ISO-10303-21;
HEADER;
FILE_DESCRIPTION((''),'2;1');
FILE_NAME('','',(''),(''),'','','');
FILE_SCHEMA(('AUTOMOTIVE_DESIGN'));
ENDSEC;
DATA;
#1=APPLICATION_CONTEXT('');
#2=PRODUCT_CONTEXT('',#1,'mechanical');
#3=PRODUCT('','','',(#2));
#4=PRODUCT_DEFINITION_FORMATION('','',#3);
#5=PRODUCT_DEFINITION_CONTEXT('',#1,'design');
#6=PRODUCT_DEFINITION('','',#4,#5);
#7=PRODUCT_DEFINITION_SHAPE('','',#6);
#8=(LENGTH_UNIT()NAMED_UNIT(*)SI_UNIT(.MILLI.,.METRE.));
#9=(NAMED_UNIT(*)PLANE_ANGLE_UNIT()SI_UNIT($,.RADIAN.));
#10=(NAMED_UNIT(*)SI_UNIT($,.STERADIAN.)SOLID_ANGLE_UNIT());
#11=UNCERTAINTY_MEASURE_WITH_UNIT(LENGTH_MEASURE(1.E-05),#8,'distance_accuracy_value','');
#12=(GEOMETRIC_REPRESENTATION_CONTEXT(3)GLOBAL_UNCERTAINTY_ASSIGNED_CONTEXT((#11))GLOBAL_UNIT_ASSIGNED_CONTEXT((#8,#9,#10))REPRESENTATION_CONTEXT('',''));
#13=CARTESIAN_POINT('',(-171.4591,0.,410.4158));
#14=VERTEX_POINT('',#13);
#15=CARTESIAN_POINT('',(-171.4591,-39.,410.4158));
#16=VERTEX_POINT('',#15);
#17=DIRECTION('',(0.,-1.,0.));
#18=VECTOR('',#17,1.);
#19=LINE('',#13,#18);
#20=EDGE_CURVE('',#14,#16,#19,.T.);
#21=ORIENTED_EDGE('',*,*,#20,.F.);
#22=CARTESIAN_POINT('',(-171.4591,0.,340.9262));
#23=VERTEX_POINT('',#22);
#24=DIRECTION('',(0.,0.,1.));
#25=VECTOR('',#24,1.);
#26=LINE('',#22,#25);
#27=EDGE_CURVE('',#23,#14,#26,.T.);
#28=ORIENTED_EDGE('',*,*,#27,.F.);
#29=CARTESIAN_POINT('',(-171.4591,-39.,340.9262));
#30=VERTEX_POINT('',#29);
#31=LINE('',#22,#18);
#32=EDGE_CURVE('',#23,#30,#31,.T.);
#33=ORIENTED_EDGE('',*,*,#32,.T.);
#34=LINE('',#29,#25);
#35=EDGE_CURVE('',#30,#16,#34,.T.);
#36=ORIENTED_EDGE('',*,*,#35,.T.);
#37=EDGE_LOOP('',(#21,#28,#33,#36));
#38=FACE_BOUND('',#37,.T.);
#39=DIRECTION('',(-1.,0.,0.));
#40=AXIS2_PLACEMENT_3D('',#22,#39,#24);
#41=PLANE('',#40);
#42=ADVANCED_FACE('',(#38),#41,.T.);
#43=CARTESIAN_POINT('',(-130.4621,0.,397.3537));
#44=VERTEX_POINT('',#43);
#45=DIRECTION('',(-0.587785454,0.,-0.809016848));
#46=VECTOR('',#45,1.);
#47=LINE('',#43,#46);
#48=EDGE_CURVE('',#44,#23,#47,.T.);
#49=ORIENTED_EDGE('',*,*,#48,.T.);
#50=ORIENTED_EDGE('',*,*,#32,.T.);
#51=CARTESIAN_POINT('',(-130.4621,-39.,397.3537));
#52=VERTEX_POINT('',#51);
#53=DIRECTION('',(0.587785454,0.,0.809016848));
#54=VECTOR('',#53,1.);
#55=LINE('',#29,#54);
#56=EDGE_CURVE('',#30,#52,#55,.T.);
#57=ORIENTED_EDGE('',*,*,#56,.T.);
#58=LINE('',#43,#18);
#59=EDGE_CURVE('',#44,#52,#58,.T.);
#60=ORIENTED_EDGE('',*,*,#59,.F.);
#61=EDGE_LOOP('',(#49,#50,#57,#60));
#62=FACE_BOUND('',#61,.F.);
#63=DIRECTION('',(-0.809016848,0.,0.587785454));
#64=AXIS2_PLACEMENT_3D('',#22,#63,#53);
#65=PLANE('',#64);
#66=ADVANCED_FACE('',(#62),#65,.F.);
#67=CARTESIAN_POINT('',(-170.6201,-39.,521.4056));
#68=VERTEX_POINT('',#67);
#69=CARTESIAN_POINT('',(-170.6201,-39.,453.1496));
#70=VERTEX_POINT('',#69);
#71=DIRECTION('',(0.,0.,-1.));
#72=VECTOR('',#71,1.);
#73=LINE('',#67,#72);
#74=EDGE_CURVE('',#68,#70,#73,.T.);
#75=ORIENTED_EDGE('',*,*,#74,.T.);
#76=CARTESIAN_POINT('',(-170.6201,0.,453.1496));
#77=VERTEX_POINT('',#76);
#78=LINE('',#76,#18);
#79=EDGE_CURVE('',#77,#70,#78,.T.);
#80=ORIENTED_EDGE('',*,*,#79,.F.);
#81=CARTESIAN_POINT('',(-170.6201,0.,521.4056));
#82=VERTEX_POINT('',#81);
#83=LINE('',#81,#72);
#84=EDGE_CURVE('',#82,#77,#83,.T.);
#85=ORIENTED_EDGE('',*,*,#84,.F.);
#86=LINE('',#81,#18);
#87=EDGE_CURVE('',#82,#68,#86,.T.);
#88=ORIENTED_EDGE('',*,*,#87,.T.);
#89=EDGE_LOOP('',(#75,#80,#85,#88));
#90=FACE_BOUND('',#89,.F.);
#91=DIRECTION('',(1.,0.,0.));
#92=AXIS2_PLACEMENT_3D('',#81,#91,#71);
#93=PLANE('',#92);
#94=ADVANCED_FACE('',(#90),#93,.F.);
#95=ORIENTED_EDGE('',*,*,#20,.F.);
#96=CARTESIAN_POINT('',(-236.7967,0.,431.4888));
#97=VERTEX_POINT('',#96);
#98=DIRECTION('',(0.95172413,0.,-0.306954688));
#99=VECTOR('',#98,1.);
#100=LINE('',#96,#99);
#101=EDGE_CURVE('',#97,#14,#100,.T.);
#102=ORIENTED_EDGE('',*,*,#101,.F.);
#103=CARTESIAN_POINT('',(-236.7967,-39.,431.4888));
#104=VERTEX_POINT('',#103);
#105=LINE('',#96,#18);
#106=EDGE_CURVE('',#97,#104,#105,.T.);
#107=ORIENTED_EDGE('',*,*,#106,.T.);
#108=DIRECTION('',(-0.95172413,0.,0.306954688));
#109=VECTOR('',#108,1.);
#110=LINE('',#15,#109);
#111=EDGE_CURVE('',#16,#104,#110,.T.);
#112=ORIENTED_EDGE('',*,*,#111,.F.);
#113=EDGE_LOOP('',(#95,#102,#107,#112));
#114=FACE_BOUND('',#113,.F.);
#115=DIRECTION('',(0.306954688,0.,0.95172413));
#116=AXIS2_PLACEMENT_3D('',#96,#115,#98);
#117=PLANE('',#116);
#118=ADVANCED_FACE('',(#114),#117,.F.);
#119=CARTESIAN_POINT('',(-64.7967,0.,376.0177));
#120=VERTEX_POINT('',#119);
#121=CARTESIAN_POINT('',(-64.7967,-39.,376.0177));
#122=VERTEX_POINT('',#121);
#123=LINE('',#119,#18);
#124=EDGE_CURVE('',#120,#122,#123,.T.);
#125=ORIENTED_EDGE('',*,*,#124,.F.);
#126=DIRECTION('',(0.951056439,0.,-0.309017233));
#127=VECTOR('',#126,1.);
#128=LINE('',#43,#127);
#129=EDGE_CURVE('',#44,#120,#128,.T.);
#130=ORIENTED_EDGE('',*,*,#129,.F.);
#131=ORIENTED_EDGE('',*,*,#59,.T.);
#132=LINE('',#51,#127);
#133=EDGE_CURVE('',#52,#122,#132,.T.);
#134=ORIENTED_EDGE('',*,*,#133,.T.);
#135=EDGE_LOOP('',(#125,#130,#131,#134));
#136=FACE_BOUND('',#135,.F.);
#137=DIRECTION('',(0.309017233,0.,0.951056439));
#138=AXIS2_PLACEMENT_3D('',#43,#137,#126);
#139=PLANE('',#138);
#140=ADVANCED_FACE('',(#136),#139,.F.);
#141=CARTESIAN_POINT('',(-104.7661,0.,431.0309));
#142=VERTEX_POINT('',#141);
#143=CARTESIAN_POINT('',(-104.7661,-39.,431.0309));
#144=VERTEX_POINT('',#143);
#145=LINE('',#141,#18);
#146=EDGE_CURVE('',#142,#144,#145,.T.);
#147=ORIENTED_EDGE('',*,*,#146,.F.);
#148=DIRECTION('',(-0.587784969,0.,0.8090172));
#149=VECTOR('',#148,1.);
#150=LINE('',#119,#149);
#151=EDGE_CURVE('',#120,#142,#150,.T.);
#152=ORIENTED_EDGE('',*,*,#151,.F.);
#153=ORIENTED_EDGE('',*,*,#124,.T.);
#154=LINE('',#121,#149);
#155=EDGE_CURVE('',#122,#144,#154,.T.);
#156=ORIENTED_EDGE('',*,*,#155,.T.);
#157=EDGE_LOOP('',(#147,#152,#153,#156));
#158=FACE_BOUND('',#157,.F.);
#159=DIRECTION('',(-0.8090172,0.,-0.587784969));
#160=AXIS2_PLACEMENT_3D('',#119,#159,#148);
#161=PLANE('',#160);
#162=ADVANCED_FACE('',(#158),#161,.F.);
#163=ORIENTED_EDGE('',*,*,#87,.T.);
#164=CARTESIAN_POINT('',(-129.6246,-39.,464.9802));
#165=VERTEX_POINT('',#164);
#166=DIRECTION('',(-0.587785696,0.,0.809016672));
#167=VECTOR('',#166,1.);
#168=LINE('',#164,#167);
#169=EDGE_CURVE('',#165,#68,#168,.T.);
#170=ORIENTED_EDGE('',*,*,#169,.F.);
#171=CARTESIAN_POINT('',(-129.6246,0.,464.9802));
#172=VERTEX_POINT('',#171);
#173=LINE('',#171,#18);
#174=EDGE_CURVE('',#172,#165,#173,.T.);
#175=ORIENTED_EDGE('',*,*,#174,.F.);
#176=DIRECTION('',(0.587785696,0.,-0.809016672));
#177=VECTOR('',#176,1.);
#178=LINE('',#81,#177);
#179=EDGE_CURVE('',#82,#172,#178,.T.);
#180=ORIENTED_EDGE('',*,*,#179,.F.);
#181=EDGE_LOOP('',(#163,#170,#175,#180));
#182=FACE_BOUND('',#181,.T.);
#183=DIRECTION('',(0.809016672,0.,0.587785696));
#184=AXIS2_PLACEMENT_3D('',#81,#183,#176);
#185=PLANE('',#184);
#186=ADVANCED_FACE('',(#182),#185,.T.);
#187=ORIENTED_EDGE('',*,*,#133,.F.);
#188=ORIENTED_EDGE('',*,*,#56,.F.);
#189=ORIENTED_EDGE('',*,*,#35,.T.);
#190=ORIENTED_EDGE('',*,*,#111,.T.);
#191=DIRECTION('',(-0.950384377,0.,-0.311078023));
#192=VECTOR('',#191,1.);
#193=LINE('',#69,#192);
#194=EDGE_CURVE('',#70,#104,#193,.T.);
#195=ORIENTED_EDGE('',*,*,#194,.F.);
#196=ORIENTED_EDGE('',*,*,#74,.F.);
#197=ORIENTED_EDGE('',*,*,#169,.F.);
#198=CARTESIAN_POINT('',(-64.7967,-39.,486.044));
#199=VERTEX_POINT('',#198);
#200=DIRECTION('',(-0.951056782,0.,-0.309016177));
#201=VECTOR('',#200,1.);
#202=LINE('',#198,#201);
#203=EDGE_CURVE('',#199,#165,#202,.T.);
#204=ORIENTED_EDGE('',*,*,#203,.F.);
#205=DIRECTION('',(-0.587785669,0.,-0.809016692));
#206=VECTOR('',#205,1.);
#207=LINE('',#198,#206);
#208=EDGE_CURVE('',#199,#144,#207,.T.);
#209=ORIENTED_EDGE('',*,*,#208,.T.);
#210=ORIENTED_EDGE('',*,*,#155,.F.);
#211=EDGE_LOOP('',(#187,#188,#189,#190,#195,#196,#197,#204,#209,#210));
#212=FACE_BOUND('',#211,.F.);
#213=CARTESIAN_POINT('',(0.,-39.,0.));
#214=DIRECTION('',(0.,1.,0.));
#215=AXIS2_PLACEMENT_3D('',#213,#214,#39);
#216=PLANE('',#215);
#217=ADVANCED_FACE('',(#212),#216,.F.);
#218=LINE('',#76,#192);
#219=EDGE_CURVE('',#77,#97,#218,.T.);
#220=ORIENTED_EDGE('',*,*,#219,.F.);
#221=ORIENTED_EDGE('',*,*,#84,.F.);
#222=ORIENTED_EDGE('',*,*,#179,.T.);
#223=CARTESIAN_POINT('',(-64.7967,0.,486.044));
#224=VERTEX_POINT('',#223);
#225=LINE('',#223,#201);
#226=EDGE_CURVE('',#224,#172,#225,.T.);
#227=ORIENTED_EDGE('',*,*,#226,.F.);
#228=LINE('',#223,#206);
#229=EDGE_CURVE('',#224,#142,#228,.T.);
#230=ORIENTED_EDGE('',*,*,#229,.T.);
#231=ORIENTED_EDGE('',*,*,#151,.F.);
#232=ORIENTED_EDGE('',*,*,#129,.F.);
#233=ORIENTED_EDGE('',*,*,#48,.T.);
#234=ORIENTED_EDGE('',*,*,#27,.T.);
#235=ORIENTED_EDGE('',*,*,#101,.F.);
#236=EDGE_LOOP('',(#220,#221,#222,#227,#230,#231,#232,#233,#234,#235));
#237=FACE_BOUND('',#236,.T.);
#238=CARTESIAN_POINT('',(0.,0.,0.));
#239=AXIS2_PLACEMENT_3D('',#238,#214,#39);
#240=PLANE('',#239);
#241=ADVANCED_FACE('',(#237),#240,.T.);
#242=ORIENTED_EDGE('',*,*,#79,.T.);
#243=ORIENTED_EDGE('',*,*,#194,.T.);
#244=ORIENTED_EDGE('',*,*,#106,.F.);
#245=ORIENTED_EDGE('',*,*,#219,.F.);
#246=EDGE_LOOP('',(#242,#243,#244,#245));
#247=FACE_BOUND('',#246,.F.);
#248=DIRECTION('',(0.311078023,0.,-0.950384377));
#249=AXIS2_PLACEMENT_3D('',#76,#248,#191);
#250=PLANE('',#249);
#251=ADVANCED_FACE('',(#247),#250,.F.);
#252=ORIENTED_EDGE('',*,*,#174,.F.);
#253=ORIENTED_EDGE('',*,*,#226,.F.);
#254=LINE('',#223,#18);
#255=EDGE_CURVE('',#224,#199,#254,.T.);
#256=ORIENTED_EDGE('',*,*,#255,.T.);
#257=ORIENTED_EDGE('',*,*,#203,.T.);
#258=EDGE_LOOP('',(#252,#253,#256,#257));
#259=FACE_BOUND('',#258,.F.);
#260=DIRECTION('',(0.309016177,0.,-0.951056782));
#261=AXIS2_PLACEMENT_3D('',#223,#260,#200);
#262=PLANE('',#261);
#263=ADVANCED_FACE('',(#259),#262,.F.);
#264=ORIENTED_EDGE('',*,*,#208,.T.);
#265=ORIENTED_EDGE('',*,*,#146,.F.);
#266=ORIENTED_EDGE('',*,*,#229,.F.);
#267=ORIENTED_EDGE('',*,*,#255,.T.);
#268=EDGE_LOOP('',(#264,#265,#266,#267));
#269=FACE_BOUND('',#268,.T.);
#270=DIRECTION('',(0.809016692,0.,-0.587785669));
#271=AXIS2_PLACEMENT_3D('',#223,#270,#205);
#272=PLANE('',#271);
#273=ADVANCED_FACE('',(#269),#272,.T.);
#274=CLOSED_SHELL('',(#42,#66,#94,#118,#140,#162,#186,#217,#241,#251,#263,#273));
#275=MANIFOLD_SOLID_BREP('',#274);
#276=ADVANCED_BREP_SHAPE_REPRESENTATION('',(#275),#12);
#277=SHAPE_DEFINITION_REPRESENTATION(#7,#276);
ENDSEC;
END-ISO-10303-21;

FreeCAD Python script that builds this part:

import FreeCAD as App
import Part
import Sketcher
Q = App.Units.Quantity


def add_polygon(sketch, points):
    """Adds a closed chain of lines whose ends are joined by coincident constraints."""
    first, n = sketch.GeometryCount, len(points)
    for a, b in zip(points, points[1:] + points[:1]):
        sketch.addGeometry(Part.LineSegment(App.Vector(*a, 0), App.Vector(*b, 0)), False)
    for i in range(n):
        sketch.addConstraint(Sketcher.Constraint("Coincident", first + i, 2, first + (i + 1) % n, 1))

doc = App.newDocument("Part")
params = doc.addObject("Spreadsheet::Sheet", "Params")
for row, (alias, value) in enumerate([
    ("sketch1_length", "68 mm"),
    ("pad1_length", "39 mm"),
], start=1):
    params.set(f"A{row}", alias)
    params.set(f"B{row}", "=" + value)
    params.setAlias(f"B{row}", alias)

body = doc.addObject("PartDesign::Body", "Body")

sketch1 = doc.addObject("Sketcher::SketchObject", "Sketch")
body.addObject(sketch1)
sketch1.AttachmentSupport = (doc.XZ_Plane, [""])
sketch1.MapMode = "FlatFace"
add_polygon(sketch1, [(-237, 431), (-171, 453), (-171, 521), (-130, 465), (-65, 486), (-105, 431), (-65, 376), (-130, 397), (-171, 341), (-171, 410)])
sketch1.addConstraint(Sketcher.Constraint("Vertical", 1))
sketch1.addConstraint(Sketcher.Constraint("Vertical", 8))
sketch1.addConstraint(Sketcher.Constraint("Parallel", 2, 5))
sketch1.addConstraint(Sketcher.Constraint("Parallel", 4, 7))
sketch1.addConstraint(Sketcher.Constraint("Vertical", 3, 2, 5, 2))
sketch1.addConstraint(Sketcher.Constraint("Equal", 4, 5))
sketch1.addConstraint(Sketcher.Constraint("Angle", 2, Q("-54 deg")))
sketch1.addConstraint(Sketcher.Constraint("Angle", 3, Q("18 deg")))
sketch1.addConstraint(Sketcher.Constraint("Angle", 6, Q("162 deg")))
sketch1.addConstraint(Sketcher.Constraint("Distance", 4, Q("68 mm")))
sketch1.addConstraint(Sketcher.Constraint("DistanceY", 1, 1, 1, 2, Q("68.256 mm")))
sketch1.addConstraint(Sketcher.Constraint("DistanceX", 0, 2, -1, 1, Q("170.62 mm")))
sketch1.addConstraint(Sketcher.Constraint("Distance", 3, Q("68.164 mm")))
sketch1.addConstraint(Sketcher.Constraint("DistanceY", 8, 1, 8, 2, Q("69.4896 mm")))
sketch1.addConstraint(Sketcher.Constraint("DistanceY", -1, 1, 3, 2, Q("486.044 mm")))
sketch1.addConstraint(Sketcher.Constraint("DistanceX", 4, 2, -1, 1, Q("104.766 mm")))
sketch1.addConstraint(Sketcher.Constraint("DistanceX", 6, 2, -1, 1, Q("130.462 mm")))
sketch1.addConstraint(Sketcher.Constraint("DistanceX", 7, 2, -1, 1, Q("171.459 mm")))
sketch1.addConstraint(Sketcher.Constraint("DistanceY", 8, 2, 9, 2, Q("21.073 mm")))
sketch1.addConstraint(Sketcher.Constraint("Distance", 0, Q("69.6314 mm")))
sketch1.setExpression("Constraints[19]", "Params.sketch1_length")
pad1 = doc.addObject("PartDesign::Pad", "Pad")
body.addObject(pad1)
pad1.Profile = sketch1
pad1.setExpression("Length", "Params.pad1_length")

doc.recompute()
